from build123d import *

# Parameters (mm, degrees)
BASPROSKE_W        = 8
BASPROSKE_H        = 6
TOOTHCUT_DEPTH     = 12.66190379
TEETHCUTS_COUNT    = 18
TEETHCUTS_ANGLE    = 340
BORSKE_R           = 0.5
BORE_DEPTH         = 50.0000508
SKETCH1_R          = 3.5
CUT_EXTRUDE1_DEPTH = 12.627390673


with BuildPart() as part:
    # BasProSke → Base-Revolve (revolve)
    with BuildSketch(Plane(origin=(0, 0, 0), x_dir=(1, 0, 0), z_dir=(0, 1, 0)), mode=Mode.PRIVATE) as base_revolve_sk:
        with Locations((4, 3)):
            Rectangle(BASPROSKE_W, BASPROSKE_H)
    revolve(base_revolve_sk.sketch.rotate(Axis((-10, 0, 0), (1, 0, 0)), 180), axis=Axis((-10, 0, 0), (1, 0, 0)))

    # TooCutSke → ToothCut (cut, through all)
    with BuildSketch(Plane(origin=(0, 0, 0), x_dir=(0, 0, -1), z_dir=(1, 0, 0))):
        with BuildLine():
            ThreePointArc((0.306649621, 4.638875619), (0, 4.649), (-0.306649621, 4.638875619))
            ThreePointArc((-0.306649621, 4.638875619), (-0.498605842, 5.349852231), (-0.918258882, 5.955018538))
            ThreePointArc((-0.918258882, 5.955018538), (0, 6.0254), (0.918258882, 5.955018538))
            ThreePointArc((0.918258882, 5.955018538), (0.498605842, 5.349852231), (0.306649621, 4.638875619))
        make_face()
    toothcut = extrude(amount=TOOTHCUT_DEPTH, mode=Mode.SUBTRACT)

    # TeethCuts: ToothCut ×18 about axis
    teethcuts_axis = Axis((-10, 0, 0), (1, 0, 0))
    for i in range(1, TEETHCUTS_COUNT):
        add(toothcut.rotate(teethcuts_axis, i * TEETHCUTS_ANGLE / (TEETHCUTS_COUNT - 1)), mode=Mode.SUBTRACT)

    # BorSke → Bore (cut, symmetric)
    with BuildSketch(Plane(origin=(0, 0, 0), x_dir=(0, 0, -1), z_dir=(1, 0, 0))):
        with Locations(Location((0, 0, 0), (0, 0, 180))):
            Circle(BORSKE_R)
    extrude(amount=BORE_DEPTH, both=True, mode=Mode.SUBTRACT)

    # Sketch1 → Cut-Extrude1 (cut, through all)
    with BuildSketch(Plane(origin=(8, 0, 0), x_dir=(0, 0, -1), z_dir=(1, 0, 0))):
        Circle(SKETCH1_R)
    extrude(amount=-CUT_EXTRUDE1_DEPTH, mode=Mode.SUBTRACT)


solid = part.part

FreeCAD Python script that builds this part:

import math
import FreeCAD as App
import Part
import Sketcher

V = App.Vector

doc = App.newDocument("Part")
body = doc.addObject("PartDesign::Body", "Body")

sketch1 = body.newObject("Sketcher::SketchObject", "Sketch")
sketch1.AttachmentSupport = (doc.getObject("XZ_Plane"), [""])
sketch1.MapMode = "FlatFace"
sketch1.addGeometry(Part.LineSegment(V(0, -6, 0), V(0, 0, 0)), False)
sketch1.addGeometry(Part.LineSegment(V(0, 0, 0), V(8, 0, 0)), False)
sketch1.addGeometry(Part.LineSegment(V(8, 0, 0), V(8, -6, 0)), False)
sketch1.addGeometry(Part.LineSegment(V(8, -6, 0), V(0, -6, 0)), False)
sketch1.addConstraint(Sketcher.Constraint("Coincident", 0, 2, 1, 1))
sketch1.addConstraint(Sketcher.Constraint("Coincident", 1, 2, 2, 1))
sketch1.addConstraint(Sketcher.Constraint("Coincident", 2, 2, 3, 1))
sketch1.addConstraint(Sketcher.Constraint("Coincident", 3, 2, 0, 1))
sketch1.addConstraint(Sketcher.Constraint("Vertical", 0))
sketch1.addConstraint(Sketcher.Constraint("Horizontal", 1))
sketch1.addConstraint(Sketcher.Constraint("Vertical", 2))
sketch1.addConstraint(Sketcher.Constraint("Horizontal", 3))
sketch1.addConstraint(Sketcher.Constraint("Coincident", 0, 2, -1, 1))
sketch1.addConstraint(Sketcher.Constraint("DistanceX", 1, 1, 1, 2, 8.0))
sketch1.addConstraint(Sketcher.Constraint("DistanceY", 0, 1, 0, 2, 6.0))
revolution = body.newObject("PartDesign::Revolution", "Revolution")
revolution.Profile = sketch1
revolution.ReferenceAxis = (sketch1, ["H_Axis"])
revolution.Angle = 360

sketch2 = body.newObject("Sketcher::SketchObject", "Sketch001")
sketch2.AttachmentSupport = (doc.getObject("YZ_Plane"), [""])
sketch2.MapMode = "FlatFace"
sketch2.addGeometry(Part.ArcOfCircle(Part.Circle(V(0, 0, 0), V(0, 0, 1), 4.6), math.radians(-3.78), math.radians(3.78)), False)
sketch2.addGeometry(Part.ArcOfCircle(Part.Circle(V(4.4, -2.5, 0), V(0, 0, 1), 2.2), math.radians(45), math.radians(85)), False)
sketch2.addGeometry(Part.ArcOfCircle(Part.Circle(V(0, 0, 0), V(0, 0, 1), 6), math.radians(-8.77), math.radians(8.77)), False)
sketch2.addGeometry(Part.ArcOfCircle(Part.Circle(V(4.4, 2.5, 0), V(0, 0, 1), 2.2), math.radians(-85), math.radians(-45)), False)
sketch2.addConstraint(Sketcher.Constraint("Coincident", 0, 1, 1, 2))
sketch2.addConstraint(Sketcher.Constraint("Coincident", 1, 1, 2, 1))
sketch2.addConstraint(Sketcher.Constraint("Coincident", 2, 2, 3, 2))
sketch2.addConstraint(Sketcher.Constraint("Coincident", 3, 1, 0, 2))
sketch2.addConstraint(Sketcher.Constraint("Coincident", 0, 3, -1, 1))
sketch2.addConstraint(Sketcher.Constraint("Coincident", 2, 3, -1, 1))
sketch2.addConstraint(Sketcher.Constraint("Equal", 1, 3))
sketch2.addConstraint(Sketcher.Constraint("Symmetric", 1, 3, 3, 3, -1))
sketch2.addConstraint(Sketcher.Constraint("Radius", 1, 2.16))
sketch2.addConstraint(Sketcher.Constraint("Radius", 0, 4.649))
sketch2.addConstraint(Sketcher.Constraint("Radius", 2, 6.0254))
sketch2.addConstraint(Sketcher.Constraint("DistanceY", 0, 1, 3, 1, 0.613299))
sketch2.addConstraint(Sketcher.Constraint("DistanceX", -1, 1, 1, 1, 5.955019))
pocket1 = body.newObject("PartDesign::Pocket", "Pocket")
pocket1.Profile = sketch2
pocket1.Type = "ThroughAll"
pocket1.Reversed = True
doc.recompute()

polarpattern = body.newObject("PartDesign::PolarPattern", "PolarPattern")
polarpattern.Originals = [pocket1]
polarpattern.Axis = (doc.getObject("X_Axis"), [""])
polarpattern.Angle = 360
polarpattern.Occurrences = 18
body.Tip = polarpattern

sketch3 = body.newObject("Sketcher::SketchObject", "Sketch002")
sketch3.AttachmentSupport = (doc.getObject("YZ_Plane"), [""])
sketch3.MapMode = "FlatFace"
sketch3.addGeometry(Part.Circle(V(0, 0, 0), V(0, 0, 1), 0.5), False)
sketch3.addConstraint(Sketcher.Constraint("Coincident", 0, 3, -1, 1))
sketch3.addConstraint(Sketcher.Constraint("Diameter", 0, 1.0))
pocket2 = body.newObject("PartDesign::Pocket", "Pocket001")
pocket2.Profile = sketch3
pocket2.Length = 100.000102
pocket2.Midplane = True

sketch4 = body.newObject("Sketcher::SketchObject", "Sketch003")
sketch4.AttachmentSupport = (doc.getObject("YZ_Plane"), [""])
sketch4.MapMode = "FlatFace"
sketch4.AttachmentOffset = App.Placement(V(0, 0, 8), App.Rotation())
sketch4.addGeometry(Part.Circle(V(0, 0, 0), V(0, 0, 1), 3.5), False)
sketch4.addConstraint(Sketcher.Constraint("Coincident", 0, 3, -1, 1))
sketch4.addConstraint(Sketcher.Constraint("Diameter", 0, 7.0))
pocket3 = body.newObject("PartDesign::Pocket", "Pocket002")
pocket3.Profile = sketch4
pocket3.Type = "ThroughAll"

doc.recompute()
